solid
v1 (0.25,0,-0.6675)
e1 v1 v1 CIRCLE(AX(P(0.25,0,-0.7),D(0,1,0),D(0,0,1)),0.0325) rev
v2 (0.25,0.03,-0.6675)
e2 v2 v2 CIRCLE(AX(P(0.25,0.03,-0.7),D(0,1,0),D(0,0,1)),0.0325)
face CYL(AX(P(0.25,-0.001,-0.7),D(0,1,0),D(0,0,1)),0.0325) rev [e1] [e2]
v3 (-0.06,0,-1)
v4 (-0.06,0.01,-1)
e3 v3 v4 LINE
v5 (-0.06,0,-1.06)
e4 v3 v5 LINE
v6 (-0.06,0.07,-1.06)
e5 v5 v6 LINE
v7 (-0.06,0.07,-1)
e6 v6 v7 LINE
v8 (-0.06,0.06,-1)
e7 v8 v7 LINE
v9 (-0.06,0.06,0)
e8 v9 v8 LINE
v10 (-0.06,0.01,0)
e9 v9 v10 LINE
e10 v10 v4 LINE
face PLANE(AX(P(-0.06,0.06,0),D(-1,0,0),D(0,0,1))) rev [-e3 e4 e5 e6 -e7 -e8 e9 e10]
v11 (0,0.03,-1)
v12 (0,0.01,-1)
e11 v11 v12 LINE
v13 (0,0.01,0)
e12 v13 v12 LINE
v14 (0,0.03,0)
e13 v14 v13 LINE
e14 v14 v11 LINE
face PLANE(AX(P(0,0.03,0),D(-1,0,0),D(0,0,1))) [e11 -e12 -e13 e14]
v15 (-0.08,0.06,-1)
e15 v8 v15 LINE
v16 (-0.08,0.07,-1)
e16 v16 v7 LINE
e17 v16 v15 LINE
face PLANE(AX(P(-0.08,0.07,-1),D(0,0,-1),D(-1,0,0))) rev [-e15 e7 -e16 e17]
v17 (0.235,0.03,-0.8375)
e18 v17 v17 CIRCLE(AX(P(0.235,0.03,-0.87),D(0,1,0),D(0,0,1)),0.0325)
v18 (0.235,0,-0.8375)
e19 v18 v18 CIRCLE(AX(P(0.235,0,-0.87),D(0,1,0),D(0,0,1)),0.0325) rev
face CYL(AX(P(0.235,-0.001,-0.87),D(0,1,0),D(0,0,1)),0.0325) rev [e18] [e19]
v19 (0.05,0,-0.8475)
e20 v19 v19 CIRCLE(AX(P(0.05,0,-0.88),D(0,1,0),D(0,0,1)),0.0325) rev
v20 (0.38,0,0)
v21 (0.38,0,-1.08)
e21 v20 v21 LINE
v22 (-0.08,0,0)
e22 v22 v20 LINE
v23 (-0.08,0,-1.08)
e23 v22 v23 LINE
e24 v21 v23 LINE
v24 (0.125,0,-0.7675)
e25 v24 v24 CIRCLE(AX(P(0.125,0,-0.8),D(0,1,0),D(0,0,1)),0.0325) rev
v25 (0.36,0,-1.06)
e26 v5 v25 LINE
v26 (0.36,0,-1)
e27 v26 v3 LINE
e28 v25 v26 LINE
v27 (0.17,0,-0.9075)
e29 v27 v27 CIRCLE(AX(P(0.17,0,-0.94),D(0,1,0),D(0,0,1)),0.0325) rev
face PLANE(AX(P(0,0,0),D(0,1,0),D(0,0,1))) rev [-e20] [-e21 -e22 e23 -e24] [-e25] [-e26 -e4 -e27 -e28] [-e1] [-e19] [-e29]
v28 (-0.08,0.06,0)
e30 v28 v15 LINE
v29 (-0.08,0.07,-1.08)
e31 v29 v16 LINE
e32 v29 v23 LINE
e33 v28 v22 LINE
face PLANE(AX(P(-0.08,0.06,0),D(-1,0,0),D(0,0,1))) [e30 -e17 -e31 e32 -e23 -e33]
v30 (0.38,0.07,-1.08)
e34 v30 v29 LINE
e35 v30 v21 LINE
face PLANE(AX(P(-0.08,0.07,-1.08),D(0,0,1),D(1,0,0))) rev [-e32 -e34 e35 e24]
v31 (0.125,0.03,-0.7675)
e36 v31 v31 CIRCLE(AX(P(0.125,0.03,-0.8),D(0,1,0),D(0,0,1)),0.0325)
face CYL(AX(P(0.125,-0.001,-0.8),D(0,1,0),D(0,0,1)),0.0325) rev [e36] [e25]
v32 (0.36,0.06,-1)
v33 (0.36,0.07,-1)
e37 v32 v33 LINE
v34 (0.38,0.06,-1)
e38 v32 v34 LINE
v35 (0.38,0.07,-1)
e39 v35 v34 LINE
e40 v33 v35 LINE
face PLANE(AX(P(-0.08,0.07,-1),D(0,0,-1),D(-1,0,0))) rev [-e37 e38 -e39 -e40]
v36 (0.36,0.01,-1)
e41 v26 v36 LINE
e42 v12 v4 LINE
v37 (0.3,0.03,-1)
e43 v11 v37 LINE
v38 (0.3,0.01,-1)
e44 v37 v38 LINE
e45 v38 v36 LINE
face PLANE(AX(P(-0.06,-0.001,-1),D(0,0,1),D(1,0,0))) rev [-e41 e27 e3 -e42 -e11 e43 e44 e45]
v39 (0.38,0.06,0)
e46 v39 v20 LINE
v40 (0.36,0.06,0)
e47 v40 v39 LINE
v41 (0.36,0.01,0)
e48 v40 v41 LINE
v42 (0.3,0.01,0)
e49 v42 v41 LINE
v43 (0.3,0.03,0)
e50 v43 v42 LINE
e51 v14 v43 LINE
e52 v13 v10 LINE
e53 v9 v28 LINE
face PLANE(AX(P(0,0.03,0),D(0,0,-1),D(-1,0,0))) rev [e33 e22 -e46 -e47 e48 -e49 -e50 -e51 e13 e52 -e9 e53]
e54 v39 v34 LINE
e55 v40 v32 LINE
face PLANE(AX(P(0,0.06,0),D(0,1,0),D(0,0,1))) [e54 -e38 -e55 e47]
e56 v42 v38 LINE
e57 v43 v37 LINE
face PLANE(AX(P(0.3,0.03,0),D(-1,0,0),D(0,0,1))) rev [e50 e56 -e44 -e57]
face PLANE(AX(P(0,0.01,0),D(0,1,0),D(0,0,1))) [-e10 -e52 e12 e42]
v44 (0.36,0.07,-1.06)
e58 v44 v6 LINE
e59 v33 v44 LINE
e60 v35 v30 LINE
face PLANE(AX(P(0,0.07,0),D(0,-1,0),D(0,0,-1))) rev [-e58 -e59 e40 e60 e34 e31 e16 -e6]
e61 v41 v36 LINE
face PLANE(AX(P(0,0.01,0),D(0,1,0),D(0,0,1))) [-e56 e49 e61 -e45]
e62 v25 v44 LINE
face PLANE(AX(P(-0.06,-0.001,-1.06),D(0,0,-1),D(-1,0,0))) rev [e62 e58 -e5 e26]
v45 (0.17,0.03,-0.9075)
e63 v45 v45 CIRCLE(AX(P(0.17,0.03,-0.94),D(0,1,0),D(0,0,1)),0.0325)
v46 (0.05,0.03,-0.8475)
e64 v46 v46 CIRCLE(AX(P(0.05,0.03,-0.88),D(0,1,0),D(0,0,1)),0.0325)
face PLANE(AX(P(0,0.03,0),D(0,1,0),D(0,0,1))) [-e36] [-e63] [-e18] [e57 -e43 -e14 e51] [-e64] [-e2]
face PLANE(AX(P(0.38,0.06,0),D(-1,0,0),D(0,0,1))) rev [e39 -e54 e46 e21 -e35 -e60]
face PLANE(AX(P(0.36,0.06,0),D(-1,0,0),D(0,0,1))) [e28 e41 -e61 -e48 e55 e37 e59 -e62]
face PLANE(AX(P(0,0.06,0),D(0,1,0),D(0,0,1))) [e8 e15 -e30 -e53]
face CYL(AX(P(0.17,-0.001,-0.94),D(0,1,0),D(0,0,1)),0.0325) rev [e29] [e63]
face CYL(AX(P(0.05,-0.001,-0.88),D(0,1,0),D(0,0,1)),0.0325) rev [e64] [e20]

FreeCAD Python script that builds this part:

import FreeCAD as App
import Part
import Sketcher


def add_polygon(sketch, points):
    """Adds a closed chain of lines whose ends are joined by coincident constraints."""
    first, n = sketch.GeometryCount, len(points)
    for a, b in zip(points, points[1:] + points[:1]):
        sketch.addGeometry(Part.LineSegment(App.Vector(*a, 0), App.Vector(*b, 0)), False)
    for i in range(n):
        sketch.addConstraint(Sketcher.Constraint("Coincident", first + i, 2, first + (i + 1) % n, 1))

doc = App.newDocument("Part")
body = doc.addObject("PartDesign::Body", "Body")

# Sketch on XZ plane
sketch1 = body.newObject("Sketcher::SketchObject", "Sketch")
sketch1.AttachmentSupport = (doc.getObject("XZ_Plane"), [""])
sketch1.MapMode = "FlatFace"
add_polygon(sketch1, [(0, -1), (0, 0), (0.3, 0), (0.3, -1)])  # lines 0-3
sketch1.addConstraint(Sketcher.Constraint("Vertical", 0))
sketch1.addConstraint(Sketcher.Constraint("Horizontal", 1))
sketch1.addConstraint(Sketcher.Constraint("Vertical", 2))
sketch1.addConstraint(Sketcher.Constraint("Horizontal", 3))
sketch1.addConstraint(Sketcher.Constraint("Coincident", 0, 2, -1, 1))
sketch1.addConstraint(Sketcher.Constraint("DistanceY", 0, 1, 0, 2, 1.0))
sketch1.addConstraint(Sketcher.Constraint("DistanceX", 1, 1, 1, 2, 0.3))
pad1 = body.newObject("PartDesign::Pad", "Pad")
pad1.Profile = sketch1
pad1.Length = 0.03
pad1.Reversed = True

# Sketch on XZ plane
sketch2 = body.newObject("Sketcher::SketchObject", "Sketch001")
sketch2.AttachmentSupport = (doc.getObject("XZ_Plane"), [""])
sketch2.MapMode = "FlatFace"
add_polygon(sketch2, [(-0.06, -1), (-0.06, 0), (0, 0), (0, -1)])  # lines 0-3
add_polygon(sketch2, [(0.3, -1), (0.3, 0), (0.36, 0), (0.36, -1)])  # lines 4-7
sketch2.addConstraint(Sketcher.Constraint("Vertical", 0))
sketch2.addConstraint(Sketcher.Constraint("Horizontal", 1))
sketch2.addConstraint(Sketcher.Constraint("Vertical", 2))
sketch2.addConstraint(Sketcher.Constraint("Horizontal", 3))
sketch2.addConstraint(Sketcher.Constraint("Vertical", 4))
sketch2.addConstraint(Sketcher.Constraint("Horizontal", 5))
sketch2.addConstraint(Sketcher.Constraint("Vertical", 6))
sketch2.addConstraint(Sketcher.Constraint("Horizontal", 7))
sketch2.addConstraint(Sketcher.Constraint("Coincident", 1, 2, -1, 1))
sketch2.addConstraint(Sketcher.Constraint("PointOnObject", 4, 2, -1))
sketch2.addConstraint(Sketcher.Constraint("Horizontal", 3, 2, 6, 2))
sketch2.addConstraint(Sketcher.Constraint("Equal", 3, 5))
sketch2.addConstraint(Sketcher.Constraint("DistanceY", 0, 1, 0, 2, 1.0))
sketch2.addConstraint(Sketcher.Constraint("DistanceX", 1, 1, 1, 2, 0.06))
sketch2.addConstraint(Sketcher.Constraint("DistanceX", -1, 1, 4, 2, 0.3))
pad2 = body.newObject("PartDesign::Pad", "Pad001")
pad2.Profile = sketch2
pad2.Length = 0.01
pad2.Reversed = True

# Sketch on XZ plane
sketch3 = body.newObject("Sketcher::SketchObject", "Sketch002")
sketch3.AttachmentSupport = (doc.getObject("XZ_Plane"), [""])
sketch3.MapMode = "FlatFace"
add_polygon(sketch3, [(-0.08, -1), (-0.08, 0), (-0.06, 0), (-0.06, -1)])  # lines 0-3
add_polygon(sketch3, [(0.36, -1), (0.36, 0), (0.38, 0), (0.38, -1)])  # lines 4-7
sketch3.addConstraint(Sketcher.Constraint("Vertical", 0))
sketch3.addConstraint(Sketcher.Constraint("Horizontal", 1))
sketch3.addConstraint(Sketcher.Constraint("Vertical", 2))
sketch3.addConstraint(Sketcher.Constraint("Horizontal", 3))
sketch3.addConstraint(Sketcher.Constraint("Vertical", 4))
sketch3.addConstraint(Sketcher.Constraint("Horizontal", 5))
sketch3.addConstraint(Sketcher.Constraint("Vertical", 6))
sketch3.addConstraint(Sketcher.Constraint("Horizontal", 7))
sketch3.addConstraint(Sketcher.Constraint("PointOnObject", 0, 2, -1))
sketch3.addConstraint(Sketcher.Constraint("PointOnObject", 4, 2, -1))
sketch3.addConstraint(Sketcher.Constraint("Horizontal", 3, 2, 6, 2))
sketch3.addConstraint(Sketcher.Constraint("Equal", 3, 5))
sketch3.addConstraint(Sketcher.Constraint("DistanceY", 0, 1, 0, 2, 1.0))
sketch3.addConstraint(Sketcher.Constraint("DistanceX", 1, 1, 1, 2, 0.02))
sketch3.addConstraint(Sketcher.Constraint("DistanceX", 0, 2, -1, 1, 0.08))
sketch3.addConstraint(Sketcher.Constraint("DistanceX", -1, 1, 4, 2, 0.36))
pad3 = body.newObject("PartDesign::Pad", "Pad002")
pad3.Profile = sketch3
pad3.Length = 0.06
pad3.Reversed = True

# Sketch on XZ plane
sketch4 = body.newObject("Sketcher::SketchObject", "Sketch003")
sketch4.AttachmentSupport = (doc.getObject("XZ_Plane"), [""])
sketch4.MapMode = "FlatFace"
add_polygon(sketch4, [(-0.08, -1.08), (-0.08, -1), (0.38, -1), (0.38, -1.08)])  # lines 0-3
sketch4.addConstraint(Sketcher.Constraint("Vertical", 0))
sketch4.addConstraint(Sketcher.Constraint("Horizontal", 1))
sketch4.addConstraint(Sketcher.Constraint("Vertical", 2))
sketch4.addConstraint(Sketcher.Constraint("Horizontal", 3))
sketch4.addConstraint(Sketcher.Constraint("DistanceY", 0, 2, -1, 1, 1.0))
sketch4.addConstraint(Sketcher.Constraint("DistanceX", 1, 1, 1, 2, 0.46))
sketch4.addConstraint(Sketcher.Constraint("DistanceY", 0, 1, 0, 2, 0.08))
sketch4.addConstraint(Sketcher.Constraint("DistanceX", 0, 2, -1, 1, 0.08))
pad4 = body.newObject("PartDesign::Pad", "Pad003")
pad4.Profile = sketch4
pad4.Length = 0.07
pad4.Reversed = True

# Sketch on XZ plane
sketch5 = body.newObject("Sketcher::SketchObject", "Sketch004")
sketch5.AttachmentSupport = (doc.getObject("XZ_Plane"), [""])
sketch5.MapMode = "FlatFace"
sketch5.AttachmentOffset = App.Placement(App.Vector(0, 0, -0.07), App.Rotation())
add_polygon(sketch5, [(-0.06, -1.06), (-0.06, -1), (0.36, -1), (0.36, -1.06)])  # lines 0-3
sketch5.addConstraint(Sketcher.Constraint("Vertical", 0))
sketch5.addConstraint(Sketcher.Constraint("Horizontal", 1))
sketch5.addConstraint(Sketcher.Constraint("Vertical", 2))
sketch5.addConstraint(Sketcher.Constraint("Horizontal", 3))
sketch5.addConstraint(Sketcher.Constraint("DistanceY", 0, 2, -1, 1, 1.0))
sketch5.addConstraint(Sketcher.Constraint("DistanceX", 1, 1, 1, 2, 0.42))
sketch5.addConstraint(Sketcher.Constraint("DistanceY", 0, 1, 0, 2, 0.06))
sketch5.addConstraint(Sketcher.Constraint("DistanceX", 0, 2, -1, 1, 0.06))
pocket1 = body.newObject("PartDesign::Pocket", "Pocket")
pocket1.Profile = sketch5
pocket1.Type = "UpToFirst"
pocket1.Reversed = True

# Sketch on XZ plane
sketch6 = body.newObject("Sketcher::SketchObject", "Sketch005")
sketch6.AttachmentSupport = (doc.getObject("XZ_Plane"), [""])
sketch6.MapMode = "FlatFace"
sketch6.AttachmentOffset = App.Placement(App.Vector(0, 0, -0.03), App.Rotation())
sketch6.addGeometry(Part.Circle(App.Vector(0.05, -0.88, 0), App.Vector(0, 0, 1), 0.033), False)
sketch6.addConstraint(Sketcher.Constraint("Diameter", 0, 0.065))
sketch6.addConstraint(Sketcher.Constraint("DistanceX", -1, 1, 0, 3, 0.05))
sketch6.addConstraint(Sketcher.Constraint("DistanceY", 0, 3, -1, 1, 0.88))
pocket2 = body.newObject("PartDesign::Pocket", "Pocket001")
pocket2.Profile = sketch6
pocket2.Type = "UpToFirst"
pocket2.Reversed = True

# Sketch on XZ plane
sketch7 = body.newObject("Sketcher::SketchObject", "Sketch006")
sketch7.AttachmentSupport = (doc.getObject("XZ_Plane"), [""])
sketch7.MapMode = "FlatFace"
sketch7.AttachmentOffset = App.Placement(App.Vector(0, 0, -0.03), App.Rotation())
sketch7.addGeometry(Part.Circle(App.Vector(0.125, -0.8, 0), App.Vector(0, 0, 1), 0.033), False)
sketch7.addConstraint(Sketcher.Constraint("Diameter", 0, 0.065))
sketch7.addConstraint(Sketcher.Constraint("DistanceY", 0, 3, -1, 1, 0.8))
sketch7.addConstraint(Sketcher.Constraint("DistanceX", -1, 1, 0, 3, 0.125))
pocket3 = body.newObject("PartDesign::Pocket", "Pocket002")
pocket3.Profile = sketch7
pocket3.Type = "UpToFirst"
pocket3.Reversed = True

# Sketch on XZ plane
sketch8 = body.newObject("Sketcher::SketchObject", "Sketch007")
sketch8.AttachmentSupport = (doc.getObject("XZ_Plane"), [""])
sketch8.MapMode = "FlatFace"
sketch8.AttachmentOffset = App.Placement(App.Vector(0, 0, -0.03), App.Rotation())
sketch8.addGeometry(Part.Circle(App.Vector(0.235, -0.87, 0), App.Vector(0, 0, 1), 0.033), False)
sketch8.addConstraint(Sketcher.Constraint("Diameter", 0, 0.065))
sketch8.addConstraint(Sketcher.Constraint("DistanceY", 0, 3, -1, 1, 0.87))
sketch8.addConstraint(Sketcher.Constraint("DistanceX", -1, 1, 0, 3, 0.235))
pocket4 = body.newObject("PartDesign::Pocket", "Pocket003")
pocket4.Profile = sketch8
pocket4.Type = "UpToFirst"
pocket4.Reversed = True

# Sketch on XZ plane
sketch9 = body.newObject("Sketcher::SketchObject", "Sketch008")
sketch9.AttachmentSupport = (doc.getObject("XZ_Plane"), [""])
sketch9.MapMode = "FlatFace"
sketch9.AttachmentOffset = App.Placement(App.Vector(0, 0, -0.03), App.Rotation())
sketch9.addGeometry(Part.Circle(App.Vector(0.17, -0.94, 0), App.Vector(0, 0, 1), 0.033), False)
sketch9.addConstraint(Sketcher.Constraint("Diameter", 0, 0.065))
sketch9.addConstraint(Sketcher.Constraint("DistanceX", -1, 1, 0, 3, 0.17))
sketch9.addConstraint(Sketcher.Constraint("DistanceY", 0, 3, -1, 1, 0.94))
pocket5 = body.newObject("PartDesign::Pocket", "Pocket004")
pocket5.Profile = sketch9
pocket5.Type = "UpToFirst"
pocket5.Reversed = True

# Sketch on XZ plane
sketch10 = body.newObject("Sketcher::SketchObject", "Sketch009")
sketch10.AttachmentSupport = (doc.getObject("XZ_Plane"), [""])
sketch10.MapMode = "FlatFace"
sketch10.AttachmentOffset = App.Placement(App.Vector(0, 0, -0.03), App.Rotation())
sketch10.addGeometry(Part.Circle(App.Vector(0.25, -0.7, 0), App.Vector(0, 0, 1), 0.033), False)
sketch10.addConstraint(Sketcher.Constraint("Diameter", 0, 0.065))
sketch10.addConstraint(Sketcher.Constraint("DistanceY", 0, 3, -1, 1, 0.7))
sketch10.addConstraint(Sketcher.Constraint("DistanceX", -1, 1, 0, 3, 0.25))
pocket6 = body.newObject("PartDesign::Pocket", "Pocket005")
pocket6.Profile = sketch10
pocket6.Type = "UpToFirst"
pocket6.Reversed = True

doc.recompute()
